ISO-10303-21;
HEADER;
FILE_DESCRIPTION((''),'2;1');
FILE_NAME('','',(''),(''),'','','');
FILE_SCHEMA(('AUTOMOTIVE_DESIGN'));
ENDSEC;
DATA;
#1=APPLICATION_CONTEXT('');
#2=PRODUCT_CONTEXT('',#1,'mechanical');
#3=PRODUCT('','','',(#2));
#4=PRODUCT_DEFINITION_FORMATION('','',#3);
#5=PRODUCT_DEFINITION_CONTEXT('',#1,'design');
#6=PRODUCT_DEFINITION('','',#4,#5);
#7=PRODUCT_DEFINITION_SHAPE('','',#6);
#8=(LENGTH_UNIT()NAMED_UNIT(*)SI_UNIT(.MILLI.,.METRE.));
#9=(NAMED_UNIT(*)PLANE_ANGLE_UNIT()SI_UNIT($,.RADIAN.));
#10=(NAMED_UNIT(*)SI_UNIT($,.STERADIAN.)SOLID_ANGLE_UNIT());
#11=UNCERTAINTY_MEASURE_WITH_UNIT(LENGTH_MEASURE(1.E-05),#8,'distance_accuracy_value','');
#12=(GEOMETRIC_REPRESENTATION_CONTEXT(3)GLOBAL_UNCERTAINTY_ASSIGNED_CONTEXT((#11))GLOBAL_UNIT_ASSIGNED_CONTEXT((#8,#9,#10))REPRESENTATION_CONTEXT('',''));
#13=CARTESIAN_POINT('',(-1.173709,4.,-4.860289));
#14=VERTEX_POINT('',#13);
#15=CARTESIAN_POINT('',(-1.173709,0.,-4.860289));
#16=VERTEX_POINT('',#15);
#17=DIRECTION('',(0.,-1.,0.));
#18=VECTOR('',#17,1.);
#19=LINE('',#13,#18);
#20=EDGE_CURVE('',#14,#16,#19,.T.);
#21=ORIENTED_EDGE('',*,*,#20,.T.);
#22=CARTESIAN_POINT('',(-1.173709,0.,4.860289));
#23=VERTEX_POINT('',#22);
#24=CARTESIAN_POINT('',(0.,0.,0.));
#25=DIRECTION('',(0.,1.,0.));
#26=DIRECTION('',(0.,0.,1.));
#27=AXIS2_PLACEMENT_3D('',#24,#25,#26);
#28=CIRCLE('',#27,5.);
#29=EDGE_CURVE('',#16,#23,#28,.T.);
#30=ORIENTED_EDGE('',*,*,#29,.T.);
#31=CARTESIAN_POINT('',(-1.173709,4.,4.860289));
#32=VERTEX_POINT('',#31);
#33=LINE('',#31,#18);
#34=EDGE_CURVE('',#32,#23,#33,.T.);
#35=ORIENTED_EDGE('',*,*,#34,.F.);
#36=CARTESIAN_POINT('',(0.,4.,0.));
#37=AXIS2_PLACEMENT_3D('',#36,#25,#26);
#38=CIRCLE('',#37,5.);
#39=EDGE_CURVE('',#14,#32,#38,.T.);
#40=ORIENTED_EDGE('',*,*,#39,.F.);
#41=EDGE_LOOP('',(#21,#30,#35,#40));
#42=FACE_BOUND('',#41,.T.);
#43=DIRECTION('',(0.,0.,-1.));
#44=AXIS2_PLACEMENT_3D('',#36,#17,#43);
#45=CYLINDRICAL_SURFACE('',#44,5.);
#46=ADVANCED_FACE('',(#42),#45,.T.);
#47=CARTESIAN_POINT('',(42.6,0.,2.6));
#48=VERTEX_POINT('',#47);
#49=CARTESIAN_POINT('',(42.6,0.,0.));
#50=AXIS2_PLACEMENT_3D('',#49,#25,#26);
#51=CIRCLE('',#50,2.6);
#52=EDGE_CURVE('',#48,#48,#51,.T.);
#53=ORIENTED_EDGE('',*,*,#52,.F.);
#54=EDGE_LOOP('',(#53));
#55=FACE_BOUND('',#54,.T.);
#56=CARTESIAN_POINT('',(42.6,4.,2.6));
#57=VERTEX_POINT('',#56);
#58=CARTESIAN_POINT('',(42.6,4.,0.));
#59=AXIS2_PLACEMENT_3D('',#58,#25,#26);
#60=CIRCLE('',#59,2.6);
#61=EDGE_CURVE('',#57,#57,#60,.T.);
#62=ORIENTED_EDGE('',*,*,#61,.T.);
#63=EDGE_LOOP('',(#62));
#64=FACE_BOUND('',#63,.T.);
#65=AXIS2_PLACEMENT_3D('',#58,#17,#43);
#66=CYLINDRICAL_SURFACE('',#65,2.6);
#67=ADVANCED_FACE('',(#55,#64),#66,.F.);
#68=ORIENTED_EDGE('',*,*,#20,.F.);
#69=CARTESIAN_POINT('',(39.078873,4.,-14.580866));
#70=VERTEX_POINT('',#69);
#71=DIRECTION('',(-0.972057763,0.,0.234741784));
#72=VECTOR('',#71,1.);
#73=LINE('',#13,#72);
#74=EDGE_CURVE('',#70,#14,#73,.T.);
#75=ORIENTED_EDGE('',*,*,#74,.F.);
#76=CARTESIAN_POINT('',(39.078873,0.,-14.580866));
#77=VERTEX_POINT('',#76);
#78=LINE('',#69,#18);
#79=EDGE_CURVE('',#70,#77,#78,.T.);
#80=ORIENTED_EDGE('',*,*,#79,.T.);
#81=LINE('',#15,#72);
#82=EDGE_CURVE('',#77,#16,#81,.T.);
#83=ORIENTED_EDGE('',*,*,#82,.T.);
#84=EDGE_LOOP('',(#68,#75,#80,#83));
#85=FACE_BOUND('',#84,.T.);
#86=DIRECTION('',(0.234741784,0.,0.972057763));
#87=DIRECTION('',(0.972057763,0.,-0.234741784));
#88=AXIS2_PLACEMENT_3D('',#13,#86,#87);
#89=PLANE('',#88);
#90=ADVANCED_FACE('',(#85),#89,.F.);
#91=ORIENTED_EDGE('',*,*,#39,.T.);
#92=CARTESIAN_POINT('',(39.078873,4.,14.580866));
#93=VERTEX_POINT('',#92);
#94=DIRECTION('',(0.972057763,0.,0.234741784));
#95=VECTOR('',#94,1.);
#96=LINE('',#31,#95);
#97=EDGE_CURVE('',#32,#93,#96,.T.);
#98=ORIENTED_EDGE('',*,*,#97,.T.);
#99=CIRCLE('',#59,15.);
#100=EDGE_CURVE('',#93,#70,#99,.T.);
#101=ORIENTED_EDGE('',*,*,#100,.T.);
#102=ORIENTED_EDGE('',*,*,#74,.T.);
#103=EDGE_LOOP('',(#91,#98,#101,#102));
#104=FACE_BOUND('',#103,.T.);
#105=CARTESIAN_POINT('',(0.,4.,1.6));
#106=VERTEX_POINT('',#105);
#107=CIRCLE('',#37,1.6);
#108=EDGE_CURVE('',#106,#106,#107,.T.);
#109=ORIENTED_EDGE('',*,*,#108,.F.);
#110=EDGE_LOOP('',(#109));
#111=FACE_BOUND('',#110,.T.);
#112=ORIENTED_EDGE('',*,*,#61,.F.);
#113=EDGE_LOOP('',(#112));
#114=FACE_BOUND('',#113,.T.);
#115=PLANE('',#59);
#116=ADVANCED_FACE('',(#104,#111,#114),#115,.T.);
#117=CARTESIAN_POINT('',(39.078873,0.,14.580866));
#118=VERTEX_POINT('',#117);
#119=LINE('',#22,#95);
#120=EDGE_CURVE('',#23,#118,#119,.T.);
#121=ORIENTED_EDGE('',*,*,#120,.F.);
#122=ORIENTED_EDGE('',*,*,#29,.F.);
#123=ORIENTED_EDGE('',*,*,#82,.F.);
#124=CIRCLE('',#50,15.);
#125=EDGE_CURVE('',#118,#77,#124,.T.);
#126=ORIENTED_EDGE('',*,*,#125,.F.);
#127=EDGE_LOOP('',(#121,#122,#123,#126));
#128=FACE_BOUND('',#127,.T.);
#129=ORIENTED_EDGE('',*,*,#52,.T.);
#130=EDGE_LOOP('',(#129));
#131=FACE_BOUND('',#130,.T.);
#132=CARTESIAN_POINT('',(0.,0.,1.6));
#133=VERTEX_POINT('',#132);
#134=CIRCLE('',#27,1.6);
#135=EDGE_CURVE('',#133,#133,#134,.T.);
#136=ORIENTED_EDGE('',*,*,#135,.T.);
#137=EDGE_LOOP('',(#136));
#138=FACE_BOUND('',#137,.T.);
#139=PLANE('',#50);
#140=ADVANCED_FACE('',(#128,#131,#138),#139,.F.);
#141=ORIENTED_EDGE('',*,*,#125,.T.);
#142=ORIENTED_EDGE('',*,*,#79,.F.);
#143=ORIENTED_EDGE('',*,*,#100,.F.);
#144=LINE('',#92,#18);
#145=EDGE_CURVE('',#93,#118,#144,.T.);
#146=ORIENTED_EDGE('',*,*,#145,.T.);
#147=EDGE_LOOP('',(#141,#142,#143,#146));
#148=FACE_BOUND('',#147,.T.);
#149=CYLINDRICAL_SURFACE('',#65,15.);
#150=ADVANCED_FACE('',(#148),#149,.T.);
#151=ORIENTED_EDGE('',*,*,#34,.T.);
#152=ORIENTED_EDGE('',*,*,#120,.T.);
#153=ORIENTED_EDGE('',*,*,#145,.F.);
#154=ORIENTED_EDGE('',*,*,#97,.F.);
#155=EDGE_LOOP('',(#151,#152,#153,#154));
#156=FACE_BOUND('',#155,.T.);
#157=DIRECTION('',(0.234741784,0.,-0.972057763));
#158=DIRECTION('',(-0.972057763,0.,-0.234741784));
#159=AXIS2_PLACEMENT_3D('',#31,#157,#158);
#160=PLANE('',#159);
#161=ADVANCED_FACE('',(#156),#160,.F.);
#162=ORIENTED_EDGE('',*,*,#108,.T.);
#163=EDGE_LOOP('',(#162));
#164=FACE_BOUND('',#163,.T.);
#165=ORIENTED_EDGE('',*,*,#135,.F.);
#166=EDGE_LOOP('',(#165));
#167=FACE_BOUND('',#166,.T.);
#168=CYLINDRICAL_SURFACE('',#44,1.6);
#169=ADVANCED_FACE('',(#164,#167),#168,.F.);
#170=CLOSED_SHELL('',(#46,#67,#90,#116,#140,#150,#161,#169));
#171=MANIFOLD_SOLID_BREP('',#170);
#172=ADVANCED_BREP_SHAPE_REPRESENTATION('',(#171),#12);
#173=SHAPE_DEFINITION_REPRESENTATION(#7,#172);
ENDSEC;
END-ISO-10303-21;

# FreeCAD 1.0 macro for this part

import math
import FreeCAD as App
import Part
import Sketcher
Q = App.Units.Quantity

doc = App.newDocument("Part")
body = doc.addObject("PartDesign::Body", "Body")

sketch1 = body.newObject("Sketcher::SketchObject", "Sketch")
sketch1.AttachmentSupport = (doc.getObject("XZ_Plane"), [""])
sketch1.MapMode = "FlatFace"
sketch1.addGeometry(Part.LineSegment(App.Vector(-1.2, 4.9, 0), App.Vector(39.1, 14.6, 0)), False)
sketch1.addGeometry(Part.ArcOfCircle(Part.Circle(App.Vector(42.6, 0, 0), App.Vector(0, 0, 1), 15), math.radians(-104), math.radians(104)), False)
sketch1.addGeometry(Part.LineSegment(App.Vector(39.1, -14.6, 0), App.Vector(-1.2, -4.9, 0)), False)
sketch1.addGeometry(Part.ArcOfCircle(Part.Circle(App.Vector(0, 0, 0), App.Vector(0, 0, 1), 5), math.radians(104), math.radians(256)), False)
sketch1.addGeometry(Part.Circle(App.Vector(0, 0, 0), App.Vector(0, 0, 1), 1.6), False)
sketch1.addGeometry(Part.Circle(App.Vector(42.6, 0, 0), App.Vector(0, 0, 1), 2.6), False)
sketch1.addConstraint(Sketcher.Constraint("Tangent", 0, 2, 1, 2))
sketch1.addConstraint(Sketcher.Constraint("Tangent", 1, 1, 2, 1))
sketch1.addConstraint(Sketcher.Constraint("Tangent", 2, 2, 3, 2))
sketch1.addConstraint(Sketcher.Constraint("Tangent", 3, 1, 0, 1))
sketch1.addConstraint(Sketcher.Constraint("Coincident", 3, 3, -1, 1))
sketch1.addConstraint(Sketcher.Constraint("Coincident", 4, 3, -1, 1))
sketch1.addConstraint(Sketcher.Constraint("Coincident", 5, 3, 1, 3))
sketch1.addConstraint(Sketcher.Constraint("PointOnObject", 1, 3, -1))
sketch1.addConstraint(Sketcher.Constraint("Radius", 1, Q("15 mm")))
sketch1.addConstraint(Sketcher.Constraint("Radius", 3, Q("5 mm")))
sketch1.addConstraint(Sketcher.Constraint("Diameter", 4, Q("3.2 mm")))
sketch1.addConstraint(Sketcher.Constraint("Diameter", 5, Q("5.2 mm")))
sketch1.addConstraint(Sketcher.Constraint("DistanceX", -1, 1, 1, 3, Q("42.6 mm")))
pad1 = body.newObject("PartDesign::Pad", "Pad")
pad1.Profile = sketch1
pad1.Length = 4
pad1.Reversed = True

doc.recompute()
